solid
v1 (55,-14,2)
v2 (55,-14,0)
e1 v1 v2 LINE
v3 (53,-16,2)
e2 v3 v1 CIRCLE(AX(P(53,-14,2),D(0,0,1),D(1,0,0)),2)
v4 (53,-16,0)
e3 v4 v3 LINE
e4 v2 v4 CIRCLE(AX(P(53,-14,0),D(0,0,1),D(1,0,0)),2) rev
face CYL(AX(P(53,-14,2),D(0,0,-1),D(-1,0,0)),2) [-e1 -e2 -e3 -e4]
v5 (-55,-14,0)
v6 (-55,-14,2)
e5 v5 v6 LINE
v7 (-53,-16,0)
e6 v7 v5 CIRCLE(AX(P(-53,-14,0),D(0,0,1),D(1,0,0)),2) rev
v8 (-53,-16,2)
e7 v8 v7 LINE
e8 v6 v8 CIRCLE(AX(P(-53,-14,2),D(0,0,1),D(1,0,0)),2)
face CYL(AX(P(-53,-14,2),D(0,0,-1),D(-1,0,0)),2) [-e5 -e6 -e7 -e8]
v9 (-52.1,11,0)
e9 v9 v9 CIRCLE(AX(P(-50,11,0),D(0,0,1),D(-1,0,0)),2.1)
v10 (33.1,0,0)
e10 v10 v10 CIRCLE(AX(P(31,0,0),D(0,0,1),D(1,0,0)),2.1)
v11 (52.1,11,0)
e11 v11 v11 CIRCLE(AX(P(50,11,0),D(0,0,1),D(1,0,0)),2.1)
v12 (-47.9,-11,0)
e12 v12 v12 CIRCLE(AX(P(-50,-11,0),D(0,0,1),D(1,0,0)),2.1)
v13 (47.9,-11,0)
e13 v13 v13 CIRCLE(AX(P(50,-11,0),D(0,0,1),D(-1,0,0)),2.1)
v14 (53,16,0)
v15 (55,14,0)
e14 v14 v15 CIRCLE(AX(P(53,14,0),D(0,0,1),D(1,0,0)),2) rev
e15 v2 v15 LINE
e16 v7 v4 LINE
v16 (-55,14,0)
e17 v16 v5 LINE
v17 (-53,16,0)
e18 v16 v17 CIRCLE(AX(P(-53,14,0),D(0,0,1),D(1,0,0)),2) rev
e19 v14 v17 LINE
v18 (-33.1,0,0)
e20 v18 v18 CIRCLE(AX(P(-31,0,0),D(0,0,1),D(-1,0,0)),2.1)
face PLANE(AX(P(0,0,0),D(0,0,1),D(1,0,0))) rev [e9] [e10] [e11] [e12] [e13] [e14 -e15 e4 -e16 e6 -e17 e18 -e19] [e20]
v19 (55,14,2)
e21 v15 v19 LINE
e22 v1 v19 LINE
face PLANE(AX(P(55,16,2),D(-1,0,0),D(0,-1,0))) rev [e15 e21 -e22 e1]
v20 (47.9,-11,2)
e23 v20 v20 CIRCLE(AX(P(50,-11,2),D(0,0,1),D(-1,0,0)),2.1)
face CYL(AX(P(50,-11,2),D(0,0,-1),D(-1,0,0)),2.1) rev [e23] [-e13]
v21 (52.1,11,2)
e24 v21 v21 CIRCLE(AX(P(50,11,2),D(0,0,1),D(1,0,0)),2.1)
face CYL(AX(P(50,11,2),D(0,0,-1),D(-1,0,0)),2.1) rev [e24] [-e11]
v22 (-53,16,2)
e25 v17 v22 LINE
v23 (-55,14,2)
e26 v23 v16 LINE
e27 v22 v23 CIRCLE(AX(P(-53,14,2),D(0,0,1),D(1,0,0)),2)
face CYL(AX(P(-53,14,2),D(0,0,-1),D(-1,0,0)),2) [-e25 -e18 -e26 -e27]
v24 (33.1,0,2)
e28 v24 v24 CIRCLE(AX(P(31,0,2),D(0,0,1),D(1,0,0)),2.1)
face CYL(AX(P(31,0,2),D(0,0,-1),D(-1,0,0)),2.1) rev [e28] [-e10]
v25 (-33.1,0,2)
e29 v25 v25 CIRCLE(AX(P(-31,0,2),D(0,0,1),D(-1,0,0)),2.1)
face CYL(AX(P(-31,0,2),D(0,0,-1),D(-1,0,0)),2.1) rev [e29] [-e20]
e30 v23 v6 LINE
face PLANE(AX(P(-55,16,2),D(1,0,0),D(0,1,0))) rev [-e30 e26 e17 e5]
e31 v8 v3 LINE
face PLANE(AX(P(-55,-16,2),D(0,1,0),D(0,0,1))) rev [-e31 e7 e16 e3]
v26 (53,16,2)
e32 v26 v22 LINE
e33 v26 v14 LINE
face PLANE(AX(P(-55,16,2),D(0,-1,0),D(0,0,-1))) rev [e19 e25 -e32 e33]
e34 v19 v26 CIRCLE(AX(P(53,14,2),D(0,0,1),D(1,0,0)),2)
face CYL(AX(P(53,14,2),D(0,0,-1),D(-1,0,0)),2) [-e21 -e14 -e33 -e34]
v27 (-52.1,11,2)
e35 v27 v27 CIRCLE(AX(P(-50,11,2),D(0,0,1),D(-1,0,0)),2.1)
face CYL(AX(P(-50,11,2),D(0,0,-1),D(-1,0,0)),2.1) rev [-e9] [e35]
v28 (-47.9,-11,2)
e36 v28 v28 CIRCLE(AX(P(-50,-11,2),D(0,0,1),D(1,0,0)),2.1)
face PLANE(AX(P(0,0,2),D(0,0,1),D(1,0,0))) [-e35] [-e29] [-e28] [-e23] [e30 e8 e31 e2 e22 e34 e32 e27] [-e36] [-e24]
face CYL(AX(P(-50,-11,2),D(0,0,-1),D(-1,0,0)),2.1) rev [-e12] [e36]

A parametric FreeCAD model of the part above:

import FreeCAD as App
import Part
import Sketcher
from FreeCAD import Vector
Q = App.Units.Quantity


def edges_at(feature, points):
    """Names of the edges that pass closest to the given points."""
    edges = feature.Shape.Edges
    near = lambda p: min(range(len(edges)), key=lambda i: edges[i].distToShape(Part.Vertex(*p))[0])
    return sorted({f"Edge{near(p) + 1}" for p in points})

doc = App.newDocument("Part")
body = doc.addObject("PartDesign::Body", "Body")

# Sketch on XY plane
sketch1 = body.newObject("Sketcher::SketchObject", "Sketch")
sketch1.AttachmentSupport = (doc.getObject("XY_Plane"), [""])
sketch1.MapMode = "FlatFace"
sketch1.addGeometry([
    Part.LineSegment(Vector(-55, 16, 0), Vector(-55, -16, 0)),  # 0
    Part.LineSegment(Vector(-55, -16, 0), Vector(55, -16, 0)),  # 1
    Part.LineSegment(Vector(55, -16, 0), Vector(55, 16, 0)),  # 2
    Part.LineSegment(Vector(55, 16, 0), Vector(-55, 16, 0)),  # 3
    Part.Circle(Vector(-50, -11, 0), Vector(0, 0, 1), 2.1),  # 4
    Part.Circle(Vector(50, -11, 0), Vector(0, 0, 1), 2.1),  # 5
    Part.Circle(Vector(-31, 0, 0), Vector(0, 0, 1), 2.1),  # 6
    Part.Circle(Vector(-50, 11, 0), Vector(0, 0, 1), 2.1),  # 7
    Part.Circle(Vector(31, 0, 0), Vector(0, 0, 1), 2.1),  # 8
    Part.Circle(Vector(50, 11, 0), Vector(0, 0, 1), 2.1),  # 9
], False)
sketch1.addConstraint([
    Sketcher.Constraint("Coincident", 0, 2, 1, 1),
    Sketcher.Constraint("Coincident", 1, 2, 2, 1),
    Sketcher.Constraint("Coincident", 2, 2, 3, 1),
    Sketcher.Constraint("Coincident", 3, 2, 0, 1),
    Sketcher.Constraint("Vertical", 0),
    Sketcher.Constraint("Horizontal", 1),
    Sketcher.Constraint("Vertical", 2),
    Sketcher.Constraint("Horizontal", 3),
    Sketcher.Constraint("Equal", 4, 5),
    Sketcher.Constraint("Equal", 5, 6),
    Sketcher.Constraint("Equal", 6, 7),
    Sketcher.Constraint("Equal", 7, 8),
    Sketcher.Constraint("Equal", 8, 9),
    Sketcher.Constraint("Symmetric", 5, 3, 7, 3, -1, 1),
    Sketcher.Constraint("Symmetric", 6, 3, 8, 3, -1, 1),
    Sketcher.Constraint("Symmetric", 4, 3, 9, 3, -1, 1),
    Sketcher.Constraint("Symmetric", 0, 2, 2, 2, -1, 1),
    Sketcher.Constraint("Symmetric", 4, 3, 5, 3, -2),
    Sketcher.Constraint("PointOnObject", 6, 3, -1),
    Sketcher.Constraint("Diameter", 4, Q("4.2 mm")),
    Sketcher.Constraint("DistanceX", 1, 1, 1, 2, Q("110 mm")),
    Sketcher.Constraint("DistanceY", 0, 2, 0, 1, Q("32 mm")),
    Sketcher.Constraint("DistanceX", 4, 3, -1, 1, Q("50 mm")),
    Sketcher.Constraint("DistanceY", 4, 3, -1, 1, Q("11 mm")),
    Sketcher.Constraint("DistanceX", 6, 3, -1, 1, Q("31 mm")),
])
pad1 = body.newObject("PartDesign::Pad", "Pad")
pad1.Profile = sketch1
pad1.Length = 2
doc.recompute()

fillet = body.newObject("PartDesign::Fillet", "Fillet")
fillet.Base = (pad1, edges_at(pad1, [
    (55, -16, 1),
    (-55, -16, 1),
    (-55, 16, 1),
    (55, 16, 1),
]))
fillet.Radius = 2

doc.recompute()
